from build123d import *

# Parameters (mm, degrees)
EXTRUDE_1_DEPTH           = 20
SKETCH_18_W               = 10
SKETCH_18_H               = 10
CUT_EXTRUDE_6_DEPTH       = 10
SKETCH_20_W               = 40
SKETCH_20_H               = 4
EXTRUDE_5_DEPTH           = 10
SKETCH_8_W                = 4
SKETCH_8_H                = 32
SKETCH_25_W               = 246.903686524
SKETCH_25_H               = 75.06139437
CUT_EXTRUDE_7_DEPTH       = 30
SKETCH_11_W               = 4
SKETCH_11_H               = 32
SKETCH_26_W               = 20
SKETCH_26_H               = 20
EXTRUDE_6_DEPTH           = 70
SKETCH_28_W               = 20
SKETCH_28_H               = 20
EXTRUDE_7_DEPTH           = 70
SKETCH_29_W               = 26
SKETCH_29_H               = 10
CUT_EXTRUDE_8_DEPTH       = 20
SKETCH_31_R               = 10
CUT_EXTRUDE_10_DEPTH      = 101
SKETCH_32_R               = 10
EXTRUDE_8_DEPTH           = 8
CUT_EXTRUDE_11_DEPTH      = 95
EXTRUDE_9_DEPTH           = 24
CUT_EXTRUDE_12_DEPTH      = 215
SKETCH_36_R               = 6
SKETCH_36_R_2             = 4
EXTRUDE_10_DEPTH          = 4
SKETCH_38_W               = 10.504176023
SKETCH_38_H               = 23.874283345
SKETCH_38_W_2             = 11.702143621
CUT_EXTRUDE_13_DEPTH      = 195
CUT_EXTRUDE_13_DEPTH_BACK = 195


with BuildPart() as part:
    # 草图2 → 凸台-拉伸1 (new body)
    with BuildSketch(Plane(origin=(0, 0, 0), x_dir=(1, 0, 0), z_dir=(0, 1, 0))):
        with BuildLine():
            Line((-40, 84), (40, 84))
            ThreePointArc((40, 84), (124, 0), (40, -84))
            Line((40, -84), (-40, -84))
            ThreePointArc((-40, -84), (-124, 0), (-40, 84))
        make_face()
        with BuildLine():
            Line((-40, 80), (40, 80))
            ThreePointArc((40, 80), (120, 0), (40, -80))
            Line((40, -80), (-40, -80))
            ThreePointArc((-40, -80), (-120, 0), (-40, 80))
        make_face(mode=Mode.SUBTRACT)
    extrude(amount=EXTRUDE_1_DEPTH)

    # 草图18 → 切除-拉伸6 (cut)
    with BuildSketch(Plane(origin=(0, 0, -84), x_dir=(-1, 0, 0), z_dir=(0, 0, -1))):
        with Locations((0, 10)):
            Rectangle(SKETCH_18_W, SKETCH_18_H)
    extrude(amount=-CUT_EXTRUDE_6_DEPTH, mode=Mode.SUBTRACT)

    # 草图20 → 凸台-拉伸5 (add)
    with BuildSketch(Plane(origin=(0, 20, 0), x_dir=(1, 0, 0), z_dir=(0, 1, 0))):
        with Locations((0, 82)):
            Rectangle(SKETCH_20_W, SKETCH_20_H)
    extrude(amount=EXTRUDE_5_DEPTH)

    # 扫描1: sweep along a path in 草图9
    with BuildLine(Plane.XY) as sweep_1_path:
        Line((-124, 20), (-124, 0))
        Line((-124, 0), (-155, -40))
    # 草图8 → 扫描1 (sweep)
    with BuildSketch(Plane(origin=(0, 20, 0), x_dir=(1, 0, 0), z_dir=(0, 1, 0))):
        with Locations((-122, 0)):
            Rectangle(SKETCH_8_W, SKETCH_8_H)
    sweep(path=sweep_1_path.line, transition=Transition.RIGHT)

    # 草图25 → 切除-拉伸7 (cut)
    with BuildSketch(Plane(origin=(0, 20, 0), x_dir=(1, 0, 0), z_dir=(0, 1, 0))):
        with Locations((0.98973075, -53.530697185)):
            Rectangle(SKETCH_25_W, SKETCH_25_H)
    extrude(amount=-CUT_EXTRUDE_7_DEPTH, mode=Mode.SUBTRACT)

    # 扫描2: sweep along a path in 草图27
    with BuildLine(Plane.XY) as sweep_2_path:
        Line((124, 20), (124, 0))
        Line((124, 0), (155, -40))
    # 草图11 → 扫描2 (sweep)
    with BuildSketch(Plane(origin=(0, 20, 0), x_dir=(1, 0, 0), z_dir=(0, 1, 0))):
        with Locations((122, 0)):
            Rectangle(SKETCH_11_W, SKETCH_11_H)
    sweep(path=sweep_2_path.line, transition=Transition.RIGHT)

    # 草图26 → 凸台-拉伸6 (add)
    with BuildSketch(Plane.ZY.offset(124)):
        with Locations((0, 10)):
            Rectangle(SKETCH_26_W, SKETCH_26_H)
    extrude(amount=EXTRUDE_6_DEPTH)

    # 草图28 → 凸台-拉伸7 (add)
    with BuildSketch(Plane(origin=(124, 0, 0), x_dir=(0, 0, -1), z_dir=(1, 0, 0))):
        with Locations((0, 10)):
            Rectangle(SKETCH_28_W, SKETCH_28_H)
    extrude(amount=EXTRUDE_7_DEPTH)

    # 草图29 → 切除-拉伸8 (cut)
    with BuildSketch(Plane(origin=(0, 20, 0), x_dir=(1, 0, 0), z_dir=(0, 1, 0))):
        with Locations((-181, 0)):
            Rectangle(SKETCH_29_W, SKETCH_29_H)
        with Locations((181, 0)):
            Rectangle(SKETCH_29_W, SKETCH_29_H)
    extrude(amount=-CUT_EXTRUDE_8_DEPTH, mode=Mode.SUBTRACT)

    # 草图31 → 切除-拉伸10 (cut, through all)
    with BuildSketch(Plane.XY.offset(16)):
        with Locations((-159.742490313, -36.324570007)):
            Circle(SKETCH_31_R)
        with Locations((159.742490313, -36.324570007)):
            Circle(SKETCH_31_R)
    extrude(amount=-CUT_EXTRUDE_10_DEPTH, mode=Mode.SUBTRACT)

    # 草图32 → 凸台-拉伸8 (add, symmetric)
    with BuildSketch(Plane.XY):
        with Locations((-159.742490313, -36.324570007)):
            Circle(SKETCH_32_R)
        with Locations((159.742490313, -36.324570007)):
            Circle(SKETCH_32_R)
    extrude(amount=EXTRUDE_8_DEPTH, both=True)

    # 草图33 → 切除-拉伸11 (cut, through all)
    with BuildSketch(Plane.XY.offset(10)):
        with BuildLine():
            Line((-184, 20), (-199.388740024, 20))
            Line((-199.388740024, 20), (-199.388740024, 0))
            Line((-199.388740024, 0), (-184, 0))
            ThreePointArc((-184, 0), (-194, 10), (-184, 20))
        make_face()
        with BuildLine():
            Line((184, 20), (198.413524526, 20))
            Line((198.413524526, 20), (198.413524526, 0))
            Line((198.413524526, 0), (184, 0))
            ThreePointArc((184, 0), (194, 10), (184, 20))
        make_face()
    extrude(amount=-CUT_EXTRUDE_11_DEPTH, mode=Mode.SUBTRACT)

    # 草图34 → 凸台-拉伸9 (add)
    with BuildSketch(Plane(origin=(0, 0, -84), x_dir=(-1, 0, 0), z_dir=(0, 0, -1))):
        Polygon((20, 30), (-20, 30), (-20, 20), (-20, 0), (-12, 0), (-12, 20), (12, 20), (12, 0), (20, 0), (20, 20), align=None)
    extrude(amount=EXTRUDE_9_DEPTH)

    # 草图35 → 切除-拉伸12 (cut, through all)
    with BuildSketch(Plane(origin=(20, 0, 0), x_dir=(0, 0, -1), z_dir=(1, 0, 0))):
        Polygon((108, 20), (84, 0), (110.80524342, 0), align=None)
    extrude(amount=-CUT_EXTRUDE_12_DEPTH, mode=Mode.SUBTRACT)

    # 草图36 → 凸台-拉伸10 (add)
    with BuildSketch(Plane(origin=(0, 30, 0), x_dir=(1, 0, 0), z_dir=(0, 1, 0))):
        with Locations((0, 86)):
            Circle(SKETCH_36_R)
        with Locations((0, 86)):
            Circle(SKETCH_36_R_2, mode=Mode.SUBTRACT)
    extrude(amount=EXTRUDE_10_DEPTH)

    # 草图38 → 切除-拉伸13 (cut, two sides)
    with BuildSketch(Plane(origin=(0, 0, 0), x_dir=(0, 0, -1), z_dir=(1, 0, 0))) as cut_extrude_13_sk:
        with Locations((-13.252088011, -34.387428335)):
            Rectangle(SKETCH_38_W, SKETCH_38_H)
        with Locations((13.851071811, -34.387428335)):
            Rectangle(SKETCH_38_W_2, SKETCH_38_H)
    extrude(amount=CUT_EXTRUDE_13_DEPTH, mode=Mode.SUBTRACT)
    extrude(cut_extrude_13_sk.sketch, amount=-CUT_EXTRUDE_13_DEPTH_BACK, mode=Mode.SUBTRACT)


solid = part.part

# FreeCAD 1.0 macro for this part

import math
import FreeCAD as App
import Part
import Sketcher
from FreeCAD import Vector
Q = App.Units.Quantity


def add_polygon(sketch, points):
    """Adds a closed chain of lines whose ends are joined by coincident constraints."""
    first, n = sketch.GeometryCount, len(points)
    for a, b in zip(points, points[1:] + points[:1]):
        sketch.addGeometry(Part.LineSegment(App.Vector(*a, 0), App.Vector(*b, 0)), False)
    for i in range(n):
        sketch.addConstraint(Sketcher.Constraint("Coincident", first + i, 2, first + (i + 1) % n, 1))

doc = App.newDocument("Part")
body = doc.addObject("PartDesign::Body", "Body")

# Sketch on XZ plane
sketch1 = body.newObject("Sketcher::SketchObject", "Sketch")
sketch1.AttachmentSupport = (doc.getObject("XZ_Plane"), [""])
sketch1.MapMode = "FlatFace"
sketch1.addGeometry([
    Part.LineSegment(Vector(40, -84, 0), Vector(-40, -84, 0)),  # 0
    Part.ArcOfCircle(Part.Circle(Vector(-40, 0, 0), Vector(0, 0, 1), 84), math.radians(90), math.radians(270)),  # 1
    Part.LineSegment(Vector(-40, 84, 0), Vector(40, 84, 0)),  # 2
    Part.ArcOfCircle(Part.Circle(Vector(40, 0, 0), Vector(0, 0, 1), 84), math.radians(-90), math.radians(90)),  # 3
    Part.LineSegment(Vector(-40, -80, 0), Vector(40, -80, 0)),  # 4
    Part.ArcOfCircle(Part.Circle(Vector(40, 0, 0), Vector(0, 0, 1), 80), math.radians(-90), math.radians(90)),  # 5
    Part.LineSegment(Vector(40, 80, 0), Vector(-40, 80, 0)),  # 6
    Part.ArcOfCircle(Part.Circle(Vector(-40, 0, 0), Vector(0, 0, 1), 80), math.radians(90), math.radians(270)),  # 7
], False)
sketch1.addConstraint([
    Sketcher.Constraint("Tangent", 0, 2, 1, 2),
    Sketcher.Constraint("Tangent", 1, 1, 2, 1),
    Sketcher.Constraint("Tangent", 2, 2, 3, 2),
    Sketcher.Constraint("Tangent", 3, 1, 0, 1),
    Sketcher.Constraint("Tangent", 4, 2, 5, 1),
    Sketcher.Constraint("Tangent", 5, 2, 6, 1),
    Sketcher.Constraint("Tangent", 6, 2, 7, 1),
    Sketcher.Constraint("Tangent", 7, 2, 4, 1),
    Sketcher.Constraint("Horizontal", 0),
    Sketcher.Constraint("Horizontal", 2),
    Sketcher.Constraint("Horizontal", 4),
    Sketcher.Constraint("Horizontal", 6),
    Sketcher.Constraint("Coincident", 5, 3, 3, 3),
    Sketcher.Constraint("Symmetric", 1, 3, 3, 3, -1, 1),
    Sketcher.Constraint("Vertical", 7, 3, 0, 2),
    Sketcher.Constraint("Radius", 1, Q("84 mm")),
    Sketcher.Constraint("Radius", 5, Q("80 mm")),
    Sketcher.Constraint("DistanceX", 0, 2, 0, 1, Q("80 mm")),
])
pad1 = body.newObject("PartDesign::Pad", "Pad")
pad1.Profile = sketch1
pad1.Length = 20
pad1.Reversed = True

# Sketch on XY plane
sketch2 = body.newObject("Sketcher::SketchObject", "Sketch001")
sketch2.AttachmentSupport = (doc.getObject("XY_Plane"), [""])
sketch2.MapMode = "FlatFace"
sketch2.AttachmentOffset = App.Placement(Vector(0, 0, -84), App.Rotation())
add_polygon(sketch2, [(5, 15), (5, 5), (-5, 5), (-5, 15)])  # lines 0-3
sketch2.addConstraint([
    Sketcher.Constraint("Vertical", 0),
    Sketcher.Constraint("Horizontal", 1),
    Sketcher.Constraint("Vertical", 2),
    Sketcher.Constraint("Horizontal", 3),
    Sketcher.Constraint("Equal", 3, 0),
    Sketcher.Constraint("DistanceX", 1, 2, 1, 1, Q("10 mm")),
    Sketcher.Constraint("DistanceX", -1, 1, 0, 2, Q("5 mm")),
    Sketcher.Constraint("DistanceY", -1, 1, 0, 2, Q("5 mm")),
])
pocket1 = body.newObject("PartDesign::Pocket", "Pocket")
pocket1.Profile = sketch2
pocket1.Length = 10
pocket1.Reversed = True

# Sketch on XZ plane
sketch3 = body.newObject("Sketcher::SketchObject", "Sketch002")
sketch3.AttachmentSupport = (doc.getObject("XZ_Plane"), [""])
sketch3.MapMode = "FlatFace"
sketch3.AttachmentOffset = App.Placement(Vector(0, 0, -20), App.Rotation())
add_polygon(sketch3, [(-20, -84), (-20, -80), (20, -80), (20, -84)])  # lines 0-3
sketch3.addConstraint([
    Sketcher.Constraint("Vertical", 0),
    Sketcher.Constraint("Horizontal", 1),
    Sketcher.Constraint("Vertical", 2),
    Sketcher.Constraint("Horizontal", 3),
    Sketcher.Constraint("DistanceX", 1, 1, 1, 2, Q("40 mm")),
    Sketcher.Constraint("DistanceY", 0, 1, 0, 2, Q("4 mm")),
    Sketcher.Constraint("DistanceX", 0, 2, -1, 1, Q("20 mm")),
    Sketcher.Constraint("DistanceY", 0, 2, -1, 1, Q("80 mm")),
])
pad2 = body.newObject("PartDesign::Pad", "Pad001")
pad2.Profile = sketch3
pad2.Length = 10
pad2.Reversed = True

# Sketch on XZ plane
sketch4 = body.newObject("Sketcher::SketchObject", "Sketch003")
sketch4.AttachmentSupport = (doc.getObject("XZ_Plane"), [""])
sketch4.MapMode = "FlatFace"
sketch4.AttachmentOffset = App.Placement(Vector(0, 0, -20), App.Rotation())
add_polygon(sketch4, [(-124, -16), (-124, 16), (-120, 16), (-120, -16)])  # lines 0-3
sketch4.addConstraint([
    Sketcher.Constraint("Vertical", 0),
    Sketcher.Constraint("Horizontal", 1),
    Sketcher.Constraint("Vertical", 2),
    Sketcher.Constraint("Horizontal", 3),
    Sketcher.Constraint("DistanceX", 1, 1, 1, 2, Q("4 mm")),
    Sketcher.Constraint("DistanceY", 0, 1, 0, 2, Q("32 mm")),
    Sketcher.Constraint("DistanceX", 0, 2, -1, 1, Q("124 mm")),
    Sketcher.Constraint("DistanceY", -1, 1, 0, 2, Q("16 mm")),
])

# Sketch on XY plane
sketch5 = body.newObject("Sketcher::SketchObject", "Sketch004")
sketch5.AttachmentSupport = (doc.getObject("XY_Plane"), [""])
sketch5.MapMode = "FlatFace"
sketch5.addGeometry([
    Part.LineSegment(Vector(-124, 20, 0), Vector(-124, 0, 0)),
    Part.LineSegment(Vector(-124, 0, 0), Vector(-155, -40, 0)),
], False)
sketch5.addConstraint([
    Sketcher.Constraint("Coincident", 0, 2, 1, 1),
    Sketcher.Constraint("Vertical", 0),
    Sketcher.Constraint("PointOnObject", 0, 2, -1),
    Sketcher.Constraint("DistanceY", 0, 2, 0, 1, Q("20 mm")),
    Sketcher.Constraint("DistanceX", 0, 1, -1, 1, Q("124 mm")),
    Sketcher.Constraint("DistanceX", 1, 2, -1, 1, Q("155 mm")),
    Sketcher.Constraint("DistanceY", 1, 2, -1, 1, Q("40 mm")),
])
doc.recompute()

additivepipe = body.newObject("PartDesign::AdditivePipe", "AdditivePipe")
additivepipe.Profile = sketch4
additivepipe.Spine = (sketch5, ["Edge1", "Edge2"])
additivepipe.Transition = "Right corner"

# Sketch on XZ plane
sketch6 = body.newObject("Sketcher::SketchObject", "Sketch005")
sketch6.AttachmentSupport = (doc.getObject("XZ_Plane"), [""])
sketch6.MapMode = "FlatFace"
sketch6.AttachmentOffset = App.Placement(Vector(0, 0, -20), App.Rotation())
add_polygon(sketch6, [(-122, 16), (-122, 91), (124, 91), (124, 16)])  # lines 0-3
sketch6.addConstraint([
    Sketcher.Constraint("Vertical", 0),
    Sketcher.Constraint("Horizontal", 1),
    Sketcher.Constraint("Vertical", 2),
    Sketcher.Constraint("Horizontal", 3),
    Sketcher.Constraint("DistanceY", -1, 1, 2, 2, Q("16 mm")),
    Sketcher.Constraint("DistanceX", 1, 1, 1, 2, Q("246.903687 mm")),
    Sketcher.Constraint("DistanceY", 0, 1, 0, 2, Q("75.061394 mm")),
    Sketcher.Constraint("DistanceX", 0, 2, -1, 1, Q("122.462113 mm")),
])
pocket2 = body.newObject("PartDesign::Pocket", "Pocket001")
pocket2.Profile = sketch6
pocket2.Length = 30
pocket2.Reversed = True

# Sketch on XZ plane
sketch7 = body.newObject("Sketcher::SketchObject", "Sketch006")
sketch7.AttachmentSupport = (doc.getObject("XZ_Plane"), [""])
sketch7.MapMode = "FlatFace"
sketch7.AttachmentOffset = App.Placement(Vector(0, 0, -20), App.Rotation())
add_polygon(sketch7, [(120, -16), (120, 16), (124, 16), (124, -16)])  # lines 0-3
sketch7.addConstraint([
    Sketcher.Constraint("Vertical", 0),
    Sketcher.Constraint("Horizontal", 1),
    Sketcher.Constraint("Vertical", 2),
    Sketcher.Constraint("Horizontal", 3),
    Sketcher.Constraint("DistanceX", 1, 1, 1, 2, Q("4 mm")),
    Sketcher.Constraint("DistanceY", 0, 1, 0, 2, Q("32 mm")),
    Sketcher.Constraint("DistanceX", -1, 1, 0, 2, Q("120 mm")),
    Sketcher.Constraint("DistanceY", -1, 1, 0, 2, Q("16 mm")),
])

# Sketch on XY plane
sketch8 = body.newObject("Sketcher::SketchObject", "Sketch007")
sketch8.AttachmentSupport = (doc.getObject("XY_Plane"), [""])
sketch8.MapMode = "FlatFace"
sketch8.addGeometry([
    Part.LineSegment(Vector(124, 20, 0), Vector(124, 0, 0)),
    Part.LineSegment(Vector(124, 0, 0), Vector(155, -40, 0)),
], False)
sketch8.addConstraint([
    Sketcher.Constraint("Coincident", 0, 2, 1, 1),
    Sketcher.Constraint("Vertical", 0),
    Sketcher.Constraint("PointOnObject", 0, 2, -1),
    Sketcher.Constraint("DistanceY", 0, 2, 0, 1, Q("20 mm")),
    Sketcher.Constraint("DistanceX", -1, 1, 0, 1, Q("124 mm")),
    Sketcher.Constraint("DistanceX", -1, 1, 1, 2, Q("155 mm")),
    Sketcher.Constraint("DistanceY", 1, 2, -1, 1, Q("40 mm")),
])
doc.recompute()

additivepipe2 = body.newObject("PartDesign::AdditivePipe", "AdditivePipe001")
additivepipe2.Profile = sketch7
additivepipe2.Spine = (sketch8, ["Edge1", "Edge2"])
additivepipe2.Transition = "Right corner"

# Sketch on YZ plane
sketch9 = body.newObject("Sketcher::SketchObject", "Sketch008")
sketch9.AttachmentSupport = (doc.getObject("YZ_Plane"), [""])
sketch9.MapMode = "FlatFace"
sketch9.AttachmentOffset = App.Placement(Vector(0, 0, -124), App.Rotation())
add_polygon(sketch9, [(20, -10), (0, -10), (0, 10), (20, 10)])  # lines 0-3
sketch9.addConstraint([
    Sketcher.Constraint("Horizontal", 0),
    Sketcher.Constraint("Vertical", 1),
    Sketcher.Constraint("Horizontal", 2),
    Sketcher.Constraint("Vertical", 3),
    Sketcher.Constraint("Symmetric", 0, 2, 1, 2, -1, 1),
    Sketcher.Constraint("Equal", 2, 1),
    Sketcher.Constraint("DistanceX", 0, 2, 0, 1, Q("20 mm")),
])
pad3 = body.newObject("PartDesign::Pad", "Pad002")
pad3.Profile = sketch9
pad3.Length = 70
pad3.Reversed = True

# Sketch on YZ plane
sketch10 = body.newObject("Sketcher::SketchObject", "Sketch009")
sketch10.AttachmentSupport = (doc.getObject("YZ_Plane"), [""])
sketch10.MapMode = "FlatFace"
sketch10.AttachmentOffset = App.Placement(Vector(0, 0, 124), App.Rotation())
add_polygon(sketch10, [(20, 10), (0, 10), (0, -10), (20, -10)])  # lines 0-3
sketch10.addConstraint([
    Sketcher.Constraint("Horizontal", 0),
    Sketcher.Constraint("Vertical", 1),
    Sketcher.Constraint("Horizontal", 2),
    Sketcher.Constraint("Vertical", 3),
    Sketcher.Constraint("Symmetric", 0, 2, 1, 2, -1, 1),
    Sketcher.Constraint("Equal", 2, 1),
    Sketcher.Constraint("DistanceX", 0, 2, 0, 1, Q("20 mm")),
])
pad4 = body.newObject("PartDesign::Pad", "Pad003")
pad4.Profile = sketch10
pad4.Length = 70

# Sketch on XZ plane
sketch11 = body.newObject("Sketcher::SketchObject", "Sketch010")
sketch11.AttachmentSupport = (doc.getObject("XZ_Plane"), [""])
sketch11.MapMode = "FlatFace"
sketch11.AttachmentOffset = App.Placement(Vector(0, 0, -20), App.Rotation())
add_polygon(sketch11, [(-194, -5), (-194, 5), (-168, 5), (-168, -5)])  # lines 0-3
add_polygon(sketch11, [(168, -5), (168, 5), (194, 5), (194, -5)])  # lines 4-7
sketch11.addConstraint([
    Sketcher.Constraint("Vertical", 0),
    Sketcher.Constraint("Horizontal", 1),
    Sketcher.Constraint("Vertical", 2),
    Sketcher.Constraint("Horizontal", 3),
    Sketcher.Constraint("Vertical", 4),
    Sketcher.Constraint("Horizontal", 5),
    Sketcher.Constraint("Vertical", 6),
    Sketcher.Constraint("Horizontal", 7),
    Sketcher.Constraint("Symmetric", 2, 2, 4, 2, -1, 1),
    Sketcher.Constraint("Symmetric", 0, 2, 6, 2, -1, 1),
    Sketcher.Constraint("Horizontal", 1, 2, 4, 2),
    Sketcher.Constraint("DistanceX", 1, 1, 1, 2, Q("26 mm")),
    Sketcher.Constraint("DistanceY", 0, 1, 0, 2, Q("10 mm")),
    Sketcher.Constraint("DistanceX", 0, 2, -1, 1, Q("194 mm")),
])
pocket3 = body.newObject("PartDesign::Pocket", "Pocket002")
pocket3.Profile = sketch11
pocket3.Length = 20
pocket3.Reversed = True

# Sketch on XY plane
sketch12 = body.newObject("Sketcher::SketchObject", "Sketch011")
sketch12.AttachmentSupport = (doc.getObject("XY_Plane"), [""])
sketch12.MapMode = "FlatFace"
sketch12.AttachmentOffset = App.Placement(Vector(0, 0, 16), App.Rotation())
sketch12.addGeometry([
    Part.Circle(Vector(-160, -36, 0), Vector(0, 0, 1), 10),
    Part.Circle(Vector(160, -36, 0), Vector(0, 0, 1), 10),
], False)
sketch12.addConstraint([
    Sketcher.Constraint("Equal", 0, 1),
    Sketcher.Constraint("Symmetric", 0, 3, 1, 3, -2),
    Sketcher.Constraint("Diameter", 0, Q("20 mm")),
    Sketcher.Constraint("DistanceX", 0, 3, -1, 1, Q("159.74249 mm")),
    Sketcher.Constraint("DistanceY", 0, 3, -1, 1, Q("36.32457 mm")),
])
pocket4 = body.newObject("PartDesign::Pocket", "Pocket003")
pocket4.Profile = sketch12
pocket4.Type = "ThroughAll"

# Sketch on XY plane
sketch13 = body.newObject("Sketcher::SketchObject", "Sketch012")
sketch13.AttachmentSupport = (doc.getObject("XY_Plane"), [""])
sketch13.MapMode = "FlatFace"
sketch13.addGeometry([
    Part.Circle(Vector(-160, -36, 0), Vector(0, 0, 1), 10),
    Part.Circle(Vector(160, -36, 0), Vector(0, 0, 1), 10),
], False)
sketch13.addConstraint([
    Sketcher.Constraint("Equal", 0, 1),
    Sketcher.Constraint("Symmetric", 0, 3, 1, 3, -2),
    Sketcher.Constraint("Diameter", 0, Q("20 mm")),
    Sketcher.Constraint("DistanceX", 0, 3, -1, 1, Q("159.74249 mm")),
    Sketcher.Constraint("DistanceY", 0, 3, -1, 1, Q("36.32457 mm")),
])
pad5 = body.newObject("PartDesign::Pad", "Pad004")
pad5.Profile = sketch13
pad5.Length = 16
pad5.Midplane = True

# Sketch on XY plane
sketch14 = body.newObject("Sketcher::SketchObject", "Sketch013")
sketch14.AttachmentSupport = (doc.getObject("XY_Plane"), [""])
sketch14.MapMode = "FlatFace"
sketch14.AttachmentOffset = App.Placement(Vector(0, 0, 10), App.Rotation())
sketch14.addGeometry([
    Part.LineSegment(Vector(-184, 20, 0), Vector(-199, 20, 0)),  # 0
    Part.LineSegment(Vector(-199, 20, 0), Vector(-199, 0, 0)),  # 1
    Part.LineSegment(Vector(-199, 0, 0), Vector(-184, 0, 0)),  # 2
    Part.ArcOfCircle(Part.Circle(Vector(-184, 10, 0), Vector(0, 0, 1), 10), math.radians(90), math.radians(270)),  # 3
    Part.LineSegment(Vector(198, 20, 0), Vector(184, 20, 0)),  # 4
    Part.ArcOfCircle(Part.Circle(Vector(184, 10, 0), Vector(0, 0, 1), 10), math.radians(-90), math.radians(90)),  # 5
    Part.LineSegment(Vector(184, 0, 0), Vector(198, 0, 0)),  # 6
    Part.LineSegment(Vector(198, 0, 0), Vector(198, 20, 0)),  # 7
], False)
sketch14.addConstraint([
    Sketcher.Constraint("Coincident", 0, 2, 1, 1),
    Sketcher.Constraint("Coincident", 1, 2, 2, 1),
    Sketcher.Constraint("Tangent", 2, 2, 3, 2),
    Sketcher.Constraint("Tangent", 3, 1, 0, 1),
    Sketcher.Constraint("Tangent", 4, 2, 5, 2),
    Sketcher.Constraint("Tangent", 5, 1, 6, 1),
    Sketcher.Constraint("Coincident", 6, 2, 7, 1),
    Sketcher.Constraint("Coincident", 7, 2, 4, 1),
    Sketcher.Constraint("Horizontal", 0),
    Sketcher.Constraint("Vertical", 1),
    Sketcher.Constraint("Horizontal", 2),
    Sketcher.Constraint("Horizontal", 4),
    Sketcher.Constraint("Horizontal", 6),
    Sketcher.Constraint("Vertical", 7),
    Sketcher.Constraint("Equal", 3, 5),
    Sketcher.Constraint("Symmetric", 2, 2, 5, 1, -1, 1),
    Sketcher.Constraint("PointOnObject", 1, 2, -1),
    Sketcher.Constraint("Radius", 3, Q("10 mm")),
    Sketcher.Constraint("DistanceX", 3, 3, -1, 1, Q("184 mm")),
    Sketcher.Constraint("DistanceX", 0, 2, 0, 1, Q("15.38874 mm")),
    Sketcher.Constraint("DistanceX", 4, 2, 4, 1, Q("14.413525 mm")),
])
pocket5 = body.newObject("PartDesign::Pocket", "Pocket004")
pocket5.Profile = sketch14
pocket5.Type = "ThroughAll"

# Sketch on XY plane
sketch15 = body.newObject("Sketcher::SketchObject", "Sketch014")
sketch15.AttachmentSupport = (doc.getObject("XY_Plane"), [""])
sketch15.MapMode = "FlatFace"
sketch15.AttachmentOffset = App.Placement(Vector(0, 0, -84), App.Rotation())
add_polygon(sketch15, [(-20, 30), (20, 30), (20, 0), (12, 0), (12, 20), (-12, 20), (-12, 0), (-20, 0)])  # lines 0-7
sketch15.addConstraint([
    Sketcher.Constraint("Horizontal", 0),
    Sketcher.Constraint("Vertical", 1),
    Sketcher.Constraint("Horizontal", 2),
    Sketcher.Constraint("Vertical", 3),
    Sketcher.Constraint("Horizontal", 4),
    Sketcher.Constraint("Vertical", 5),
    Sketcher.Constraint("Horizontal", 6),
    Sketcher.Constraint("Vertical", 7),
    Sketcher.Constraint("Symmetric", 2, 2, 5, 2, -1, 1),
    Sketcher.Constraint("Symmetric", 1, 2, 6, 2, -2),
    Sketcher.Constraint("DistanceX", 0, 1, 0, 2, Q("40 mm")),
    Sketcher.Constraint("DistanceX", 2, 2, 2, 1, Q("8 mm")),
    Sketcher.Constraint("DistanceY", 1, 2, 1, 1, Q("30 mm")),
    Sketcher.Constraint("DistanceY", 3, 1, 3, 2, Q("20 mm")),
])
pad6 = body.newObject("PartDesign::Pad", "Pad005")
pad6.Profile = sketch15
pad6.Length = 24
pad6.Reversed = True

# Sketch on YZ plane
sketch16 = body.newObject("Sketcher::SketchObject", "Sketch015")
sketch16.AttachmentSupport = (doc.getObject("YZ_Plane"), [""])
sketch16.MapMode = "FlatFace"
sketch16.AttachmentOffset = App.Placement(Vector(0, 0, 20), App.Rotation())
add_polygon(sketch16, [(20, -108), (0, -84), (0, -111)])  # lines 0-2
sketch16.addConstraint([
    Sketcher.Constraint("Vertical", 1),
    Sketcher.Constraint("PointOnObject", 0, 2, -2),
    Sketcher.Constraint("DistanceY", 0, 2, -1, 1, Q("84 mm")),
    Sketcher.Constraint("DistanceX", -1, 1, 2, 2, Q("20 mm")),
    Sketcher.Constraint("DistanceY", 2, 2, -1, 1, Q("108 mm")),
    Sketcher.Constraint("DistanceY", 1, 2, 1, 1, Q("26.805243 mm")),
])
pocket6 = body.newObject("PartDesign::Pocket", "Pocket005")
pocket6.Profile = sketch16
pocket6.Type = "ThroughAll"

# Sketch on XZ plane
sketch17 = body.newObject("Sketcher::SketchObject", "Sketch016")
sketch17.AttachmentSupport = (doc.getObject("XZ_Plane"), [""])
sketch17.MapMode = "FlatFace"
sketch17.AttachmentOffset = App.Placement(Vector(0, 0, -30), App.Rotation())
sketch17.addGeometry([
    Part.Circle(Vector(0, -86, 0), Vector(0, 0, 1), 6),
    Part.Circle(Vector(0, -86, 0), Vector(0, 0, 1), 4),
], False)
sketch17.addConstraint([
    Sketcher.Constraint("Coincident", 1, 3, 0, 3),
    Sketcher.Constraint("PointOnObject", 0, 3, -2),
    Sketcher.Constraint("Diameter", 0, Q("12 mm")),
    Sketcher.Constraint("Diameter", 1, Q("8 mm")),
    Sketcher.Constraint("DistanceY", 0, 3, -1, 1, Q("86 mm")),
])
pad7 = body.newObject("PartDesign::Pad", "Pad006")
pad7.Profile = sketch17
pad7.Length = 4
pad7.Reversed = True

# Sketch on YZ plane
sketch18 = body.newObject("Sketcher::SketchObject", "Sketch017")
sketch18.AttachmentSupport = (doc.getObject("YZ_Plane"), [""])
sketch18.MapMode = "FlatFace"
add_polygon(sketch18, [(-22, 19), (-46, 19), (-46, 8), (-22, 8)])  # lines 0-3
add_polygon(sketch18, [(-22, -8), (-46, -8), (-46, -20), (-22, -20)])  # lines 4-7
sketch18.addConstraint([
    Sketcher.Constraint("Horizontal", 0),
    Sketcher.Constraint("Vertical", 1),
    Sketcher.Constraint("Horizontal", 2),
    Sketcher.Constraint("Vertical", 3),
    Sketcher.Constraint("Horizontal", 4),
    Sketcher.Constraint("Vertical", 5),
    Sketcher.Constraint("Horizontal", 6),
    Sketcher.Constraint("Vertical", 7),
    Sketcher.Constraint("Symmetric", 1, 2, 4, 2, -1),
    Sketcher.Constraint("Vertical", 3, 2, 6, 2),
    Sketcher.Constraint("DistanceY", -1, 1, 1, 2, Q("8 mm")),
    Sketcher.Constraint("DistanceX", 0, 2, 0, 1, Q("23.874283 mm")),
    Sketcher.Constraint("DistanceY", 1, 2, 1, 1, Q("10.504176 mm")),
    Sketcher.Constraint("DistanceY", 5, 2, 5, 1, Q("11.702144 mm")),
    Sketcher.Constraint("DistanceX", 0, 2, -1, 1, Q("46.32457 mm")),
])
pocket7 = body.newObject("PartDesign::Pocket", "Pocket006")
pocket7.Profile = sketch18
pocket7.Type = "ThroughAll"
pocket7.Midplane = True

doc.recompute()
